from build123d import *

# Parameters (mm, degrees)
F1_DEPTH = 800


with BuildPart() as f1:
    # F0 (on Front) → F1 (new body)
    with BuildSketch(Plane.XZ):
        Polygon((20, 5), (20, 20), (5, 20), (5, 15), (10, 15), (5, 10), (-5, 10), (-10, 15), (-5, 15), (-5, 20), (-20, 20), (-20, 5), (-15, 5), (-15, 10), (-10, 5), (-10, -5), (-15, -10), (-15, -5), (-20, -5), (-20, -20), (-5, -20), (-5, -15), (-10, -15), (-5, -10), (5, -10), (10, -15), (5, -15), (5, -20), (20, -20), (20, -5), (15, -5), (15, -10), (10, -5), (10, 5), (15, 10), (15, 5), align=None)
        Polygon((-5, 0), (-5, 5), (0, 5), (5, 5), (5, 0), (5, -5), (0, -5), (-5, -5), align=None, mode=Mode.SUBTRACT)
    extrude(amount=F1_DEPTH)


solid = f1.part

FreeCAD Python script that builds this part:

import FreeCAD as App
import Part
import Sketcher
from FreeCAD import Vector
Q = App.Units.Quantity


def add_polygon(sketch, points):
    """Adds a closed chain of lines whose ends are joined by coincident constraints."""
    first, n = sketch.GeometryCount, len(points)
    for a, b in zip(points, points[1:] + points[:1]):
        sketch.addGeometry(Part.LineSegment(App.Vector(*a, 0), App.Vector(*b, 0)), False)
    for i in range(n):
        sketch.addConstraint(Sketcher.Constraint("Coincident", first + i, 2, first + (i + 1) % n, 1))

doc = App.newDocument("Part")
body = doc.addObject("PartDesign::Body", "Body")

sketch1 = body.newObject("Sketcher::SketchObject", "Sketch")
sketch1.AttachmentSupport = (doc.getObject("XZ_Plane"), [""])
sketch1.MapMode = "FlatFace"
add_polygon(sketch1, [(20, 5), (20, 20), (5, 20), (5, 15), (10, 15), (5, 10), (-5, 10), (-10, 15), (-5, 15), (-5, 20), (-20, 20), (-20, 5), (-15, 5), (-15, 10), (-10, 5), (-10, -5), (-15, -10), (-15, -5), (-20, -5), (-20, -20), (-5, -20), (-5, -15), (-10, -15), (-5, -10), (5, -10), (10, -15), (5, -15), (5, -20), (20, -20), (20, -5), (15, -5), (15, -10), (10, -5), (10, 5), (15, 10), (15, 5)])
add_polygon(sketch1, [(-5, -5), (-5, 5), (5, 5), (5, -5)])
sketch1.addConstraint([
    Sketcher.Constraint("Vertical", 0),
    Sketcher.Constraint("Horizontal", 1),
    Sketcher.Constraint("Vertical", 2),
    Sketcher.Constraint("Horizontal", 3),
    Sketcher.Constraint("Horizontal", 5),
    Sketcher.Constraint("Horizontal", 7),
    Sketcher.Constraint("Vertical", 8),
    Sketcher.Constraint("Horizontal", 9),
    Sketcher.Constraint("Vertical", 10),
    Sketcher.Constraint("Horizontal", 11),
    Sketcher.Constraint("Vertical", 12),
    Sketcher.Constraint("Vertical", 14),
    Sketcher.Constraint("Vertical", 16),
    Sketcher.Constraint("Horizontal", 17),
    Sketcher.Constraint("Vertical", 18),
    Sketcher.Constraint("Horizontal", 19),
    Sketcher.Constraint("Vertical", 20),
    Sketcher.Constraint("Horizontal", 21),
    Sketcher.Constraint("Horizontal", 23),
    Sketcher.Constraint("Horizontal", 25),
    Sketcher.Constraint("Vertical", 26),
    Sketcher.Constraint("Horizontal", 27),
    Sketcher.Constraint("Vertical", 28),
    Sketcher.Constraint("Horizontal", 29),
    Sketcher.Constraint("Vertical", 30),
    Sketcher.Constraint("Vertical", 32),
    Sketcher.Constraint("Vertical", 34),
    Sketcher.Constraint("Horizontal", 35),
    Sketcher.Constraint("Vertical", 36),
    Sketcher.Constraint("Horizontal", 37),
    Sketcher.Constraint("Vertical", 38),
    Sketcher.Constraint("Horizontal", 39),
    Sketcher.Constraint("Symmetric", 0, 2, 18, 2, -1, 1),
    Sketcher.Constraint("Symmetric", 2, 2, 20, 2, -1, 1),
    Sketcher.Constraint("Symmetric", 4, 2, 22, 2, -1, 1),
    Sketcher.Constraint("Symmetric", 6, 2, 24, 2, -1, 1),
    Sketcher.Constraint("Symmetric", 8, 2, 26, 2, -1, 1),
    Sketcher.Constraint("Symmetric", 10, 2, 28, 2, -1, 1),
    Sketcher.Constraint("Symmetric", 12, 2, 30, 2, -1, 1),
    Sketcher.Constraint("Symmetric", 13, 2, 31, 2, -1, 1),
    Sketcher.Constraint("Symmetric", 15, 2, 33, 2, -1, 1),
    Sketcher.Constraint("Symmetric", 36, 2, 38, 2, -1, 1),
    Sketcher.Constraint("Symmetric", 3, 2, 6, 2, -2),
    Sketcher.Constraint("Symmetric", 1, 2, 8, 2, -2),
    Sketcher.Constraint("Symmetric", 17, 2, 28, 2, -2),
    Sketcher.Constraint("Symmetric", 15, 2, 30, 2, -2),
    Sketcher.Constraint("Perpendicular", 4, 6),
    Sketcher.Constraint("Parallel", 6, 13),
    Sketcher.Constraint("Perpendicular", 13, 15),
    Sketcher.Constraint("Parallel", 15, 22),
    Sketcher.Constraint("Perpendicular", 22, 24),
    Sketcher.Constraint("Perpendicular", 31, 33),
    Sketcher.Constraint("Horizontal", 5, 2, 12, 2),
    Sketcher.Constraint("Horizontal", 11, 2, 13, 2),
    Sketcher.Constraint("Horizontal", 14, 2, 16, 2),
    Sketcher.Constraint("Horizontal", 32, 2, 34, 2),
    Sketcher.Constraint("Horizontal", 35, 2, 36, 2),
    Sketcher.Constraint("Vertical", 2, 2, 4, 2),
    Sketcher.Constraint("Vertical", 6, 2, 13, 2),
    Sketcher.Constraint("Vertical", 22, 2, 36, 2),
    Sketcher.Constraint("Equal", 7, 11),
    Sketcher.Constraint("Equal", 27, 0),
    Sketcher.Constraint("Equal", 8, 12),
    Sketcher.Constraint("Equal", 39, 14),
    Sketcher.Constraint("DistanceX", 1, 2, 1, 1, Q("15 mm")),
    Sketcher.Constraint("DistanceX", 5, 2, 5, 1, Q("10 mm")),
])
pad1 = body.newObject("PartDesign::Pad", "Pad")
pad1.Profile = sketch1
pad1.Length = 800

doc.recompute()
